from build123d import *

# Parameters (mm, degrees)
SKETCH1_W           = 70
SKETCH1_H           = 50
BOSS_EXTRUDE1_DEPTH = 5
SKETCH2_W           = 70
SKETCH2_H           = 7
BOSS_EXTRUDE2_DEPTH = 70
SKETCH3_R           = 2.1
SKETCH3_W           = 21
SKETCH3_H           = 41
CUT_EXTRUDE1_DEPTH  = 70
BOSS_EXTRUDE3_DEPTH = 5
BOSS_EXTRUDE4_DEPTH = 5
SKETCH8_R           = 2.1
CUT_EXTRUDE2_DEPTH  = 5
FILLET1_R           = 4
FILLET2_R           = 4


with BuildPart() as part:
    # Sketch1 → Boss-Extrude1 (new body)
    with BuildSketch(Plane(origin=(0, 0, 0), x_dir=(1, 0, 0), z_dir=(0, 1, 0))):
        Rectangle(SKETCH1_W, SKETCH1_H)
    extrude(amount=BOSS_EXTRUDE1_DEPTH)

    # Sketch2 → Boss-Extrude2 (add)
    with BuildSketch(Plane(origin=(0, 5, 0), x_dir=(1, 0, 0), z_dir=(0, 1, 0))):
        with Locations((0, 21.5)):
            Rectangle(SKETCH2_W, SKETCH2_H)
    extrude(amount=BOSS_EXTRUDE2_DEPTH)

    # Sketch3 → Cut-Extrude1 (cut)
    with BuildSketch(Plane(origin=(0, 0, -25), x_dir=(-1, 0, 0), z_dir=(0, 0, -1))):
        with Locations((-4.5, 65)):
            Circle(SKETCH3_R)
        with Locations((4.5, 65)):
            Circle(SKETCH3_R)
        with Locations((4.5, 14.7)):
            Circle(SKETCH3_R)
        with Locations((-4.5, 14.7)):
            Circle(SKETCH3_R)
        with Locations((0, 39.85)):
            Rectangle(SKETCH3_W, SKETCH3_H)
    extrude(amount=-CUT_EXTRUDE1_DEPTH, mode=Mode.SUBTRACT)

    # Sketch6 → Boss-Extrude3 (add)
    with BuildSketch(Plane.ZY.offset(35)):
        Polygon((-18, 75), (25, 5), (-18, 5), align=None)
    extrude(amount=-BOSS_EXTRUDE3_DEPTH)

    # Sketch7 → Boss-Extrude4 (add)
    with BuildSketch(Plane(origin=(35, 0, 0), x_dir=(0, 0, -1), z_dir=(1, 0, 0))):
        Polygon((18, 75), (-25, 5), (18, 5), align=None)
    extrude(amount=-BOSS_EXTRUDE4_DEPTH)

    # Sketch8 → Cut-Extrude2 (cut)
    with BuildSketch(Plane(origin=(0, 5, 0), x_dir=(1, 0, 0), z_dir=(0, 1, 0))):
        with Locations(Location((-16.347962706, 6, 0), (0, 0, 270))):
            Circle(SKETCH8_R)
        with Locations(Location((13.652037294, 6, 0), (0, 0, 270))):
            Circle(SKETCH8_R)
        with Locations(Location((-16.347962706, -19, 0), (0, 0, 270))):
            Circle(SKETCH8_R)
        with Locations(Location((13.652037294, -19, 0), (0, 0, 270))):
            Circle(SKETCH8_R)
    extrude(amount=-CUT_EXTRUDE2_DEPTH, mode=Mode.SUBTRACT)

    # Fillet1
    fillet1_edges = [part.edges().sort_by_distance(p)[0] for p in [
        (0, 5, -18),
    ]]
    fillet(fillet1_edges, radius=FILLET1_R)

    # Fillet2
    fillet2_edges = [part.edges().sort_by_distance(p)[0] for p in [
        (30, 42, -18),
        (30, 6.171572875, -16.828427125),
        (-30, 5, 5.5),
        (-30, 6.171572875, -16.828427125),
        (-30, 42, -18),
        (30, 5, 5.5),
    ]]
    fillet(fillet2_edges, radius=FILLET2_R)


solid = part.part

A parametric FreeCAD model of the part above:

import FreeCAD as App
import Part
import Sketcher
Q = App.Units.Quantity


def edges_at(feature, points):
    """Names of the edges that pass closest to the given points."""
    edges = feature.Shape.Edges
    near = lambda p: min(range(len(edges)), key=lambda i: edges[i].distToShape(Part.Vertex(*p))[0])
    return sorted({f"Edge{near(p) + 1}" for p in points})


def add_polygon(sketch, points):
    """Adds a closed chain of lines whose ends are joined by coincident constraints."""
    first, n = sketch.GeometryCount, len(points)
    for a, b in zip(points, points[1:] + points[:1]):
        sketch.addGeometry(Part.LineSegment(App.Vector(*a, 0), App.Vector(*b, 0)), False)
    for i in range(n):
        sketch.addConstraint(Sketcher.Constraint("Coincident", first + i, 2, first + (i + 1) % n, 1))

doc = App.newDocument("Part")
body = doc.addObject("PartDesign::Body", "Body")

# Sketch on XZ plane
sketch1 = body.newObject("Sketcher::SketchObject", "Sketch")
sketch1.AttachmentSupport = (doc.getObject("XZ_Plane"), [""])
sketch1.MapMode = "FlatFace"
add_polygon(sketch1, [(-35, -25), (-35, 25), (35, 25), (35, -25)])  # lines 0-3
sketch1.addConstraint([
    Sketcher.Constraint("Vertical", 0),
    Sketcher.Constraint("Horizontal", 1),
    Sketcher.Constraint("Vertical", 2),
    Sketcher.Constraint("Horizontal", 3),
    Sketcher.Constraint("Symmetric", 0, 2, 2, 2, -1, 1),
    Sketcher.Constraint("DistanceX", 1, 1, 1, 2, Q("70 mm")),
    Sketcher.Constraint("DistanceY", 0, 1, 0, 2, Q("50 mm")),
])
pad1 = body.newObject("PartDesign::Pad", "Pad")
pad1.Profile = sketch1
pad1.Length = 5
pad1.Reversed = True

# Sketch on XZ plane
sketch2 = body.newObject("Sketcher::SketchObject", "Sketch001")
sketch2.AttachmentSupport = (doc.getObject("XZ_Plane"), [""])
sketch2.MapMode = "FlatFace"
sketch2.AttachmentOffset = App.Placement(App.Vector(0, 0, -5), App.Rotation())
add_polygon(sketch2, [(-35, -25), (-35, -18), (35, -18), (35, -25)])  # lines 0-3
sketch2.addConstraint([
    Sketcher.Constraint("Vertical", 0),
    Sketcher.Constraint("Horizontal", 1),
    Sketcher.Constraint("Vertical", 2),
    Sketcher.Constraint("Horizontal", 3),
    Sketcher.Constraint("DistanceX", 1, 1, 1, 2, Q("70 mm")),
    Sketcher.Constraint("DistanceY", 0, 1, 0, 2, Q("7 mm")),
    Sketcher.Constraint("DistanceX", 0, 2, -1, 1, Q("35 mm")),
    Sketcher.Constraint("DistanceY", 0, 2, -1, 1, Q("18 mm")),
])
pad2 = body.newObject("PartDesign::Pad", "Pad001")
pad2.Profile = sketch2
pad2.Length = 70
pad2.Reversed = True

# Sketch on XY plane
sketch3 = body.newObject("Sketcher::SketchObject", "Sketch002")
sketch3.AttachmentSupport = (doc.getObject("XY_Plane"), [""])
sketch3.MapMode = "FlatFace"
sketch3.AttachmentOffset = App.Placement(App.Vector(0, 0, -25), App.Rotation())
sketch3.addGeometry(Part.Circle(App.Vector(4.5, 65, 0), App.Vector(0, 0, 1), 2.1), False)  # 0
sketch3.addGeometry(Part.Circle(App.Vector(-4.5, 65, 0), App.Vector(0, 0, 1), 2.1), False)  # 1
sketch3.addGeometry(Part.Circle(App.Vector(-4.5, 14.7, 0), App.Vector(0, 0, 1), 2.1), False)  # 2
sketch3.addGeometry(Part.Circle(App.Vector(4.5, 14.7, 0), App.Vector(0, 0, 1), 2.1), False)  # 3
add_polygon(sketch3, [(10.5, 60.35), (10.5, 19.35), (-10.5, 19.35), (-10.5, 60.35)])  # lines 4-7
sketch3.addConstraint([
    Sketcher.Constraint("Vertical", 4),
    Sketcher.Constraint("Horizontal", 5),
    Sketcher.Constraint("Vertical", 6),
    Sketcher.Constraint("Horizontal", 7),
    Sketcher.Constraint("Equal", 0, 1),
    Sketcher.Constraint("Equal", 1, 2),
    Sketcher.Constraint("Equal", 2, 3),
    Sketcher.Constraint("Symmetric", 0, 3, 1, 3, -2),
    Sketcher.Constraint("Symmetric", 2, 3, 3, 3, -2),
    Sketcher.Constraint("Vertical", 1, 3, 2, 3),
    Sketcher.Constraint("Diameter", 0, Q("4.2 mm")),
    Sketcher.Constraint("DistanceX", 5, 2, 5, 1, Q("21 mm")),
    Sketcher.Constraint("DistanceY", 4, 2, 4, 1, Q("41 mm")),
    Sketcher.Constraint("DistanceY", -1, 1, 0, 3, Q("65 mm")),
    Sketcher.Constraint("DistanceX", 1, 3, 0, 3, Q("9 mm")),
    Sketcher.Constraint("DistanceX", 3, 3, 4, 2, Q("6 mm")),
    Sketcher.Constraint("DistanceY", -1, 1, 2, 3, Q("14.7 mm")),
    Sketcher.Constraint("DistanceY", -1, 1, 4, 2, Q("19.35 mm")),
])
pocket1 = body.newObject("PartDesign::Pocket", "Pocket")
pocket1.Profile = sketch3
pocket1.Length = 70
pocket1.Reversed = True

# Sketch on YZ plane
sketch4 = body.newObject("Sketcher::SketchObject", "Sketch003")
sketch4.AttachmentSupport = (doc.getObject("YZ_Plane"), [""])
sketch4.MapMode = "FlatFace"
sketch4.AttachmentOffset = App.Placement(App.Vector(0, 0, -35), App.Rotation())
add_polygon(sketch4, [(5, 25), (75, -18), (5, -18)])  # lines 0-2
sketch4.addConstraint([
    Sketcher.Constraint("Horizontal", 1),
    Sketcher.Constraint("Vertical", 2),
    Sketcher.Constraint("DistanceX", 1, 2, 1, 1, Q("70 mm")),
    Sketcher.Constraint("DistanceY", 2, 1, 2, 2, Q("43 mm")),
    Sketcher.Constraint("DistanceX", -1, 1, 0, 2, Q("75 mm")),
    Sketcher.Constraint("DistanceY", 0, 2, -1, 1, Q("18 mm")),
])
pad3 = body.newObject("PartDesign::Pad", "Pad002")
pad3.Profile = sketch4
pad3.Length = 5

# Sketch on YZ plane
sketch5 = body.newObject("Sketcher::SketchObject", "Sketch004")
sketch5.AttachmentSupport = (doc.getObject("YZ_Plane"), [""])
sketch5.MapMode = "FlatFace"
sketch5.AttachmentOffset = App.Placement(App.Vector(0, 0, 35), App.Rotation())
add_polygon(sketch5, [(75, -18), (5, 25), (5, -18)])  # lines 0-2
sketch5.addConstraint([
    Sketcher.Constraint("Vertical", 1),
    Sketcher.Constraint("Horizontal", 2),
    Sketcher.Constraint("DistanceX", 2, 1, 2, 2, Q("70 mm")),
    Sketcher.Constraint("DistanceY", 1, 2, 1, 1, Q("43 mm")),
    Sketcher.Constraint("DistanceX", -1, 1, 0, 2, Q("5 mm")),
    Sketcher.Constraint("DistanceY", -1, 1, 0, 2, Q("25 mm")),
])
pad4 = body.newObject("PartDesign::Pad", "Pad003")
pad4.Profile = sketch5
pad4.Length = 5
pad4.Reversed = True

# Sketch on XZ plane
sketch6 = body.newObject("Sketcher::SketchObject", "Sketch005")
sketch6.AttachmentSupport = (doc.getObject("XZ_Plane"), [""])
sketch6.MapMode = "FlatFace"
sketch6.AttachmentOffset = App.Placement(App.Vector(0, 0, -5), App.Rotation())
sketch6.addGeometry([
    Part.Circle(App.Vector(-16.347963, -6, 0), App.Vector(0, 0, 1), 2.1),
    Part.Circle(App.Vector(13.652037, -6, 0), App.Vector(0, 0, 1), 2.1),
    Part.Circle(App.Vector(-16.347963, 19, 0), App.Vector(0, 0, 1), 2.1),
    Part.Circle(App.Vector(13.652037, 19, 0), App.Vector(0, 0, 1), 2.1),
], False)
sketch6.addConstraint([
    Sketcher.Constraint("Equal", 0, 1),
    Sketcher.Constraint("Equal", 1, 2),
    Sketcher.Constraint("Equal", 2, 3),
    Sketcher.Constraint("Horizontal", 0, 3, 1, 3),
    Sketcher.Constraint("Horizontal", 2, 3, 3, 3),
    Sketcher.Constraint("Vertical", 0, 3, 2, 3),
    Sketcher.Constraint("Vertical", 1, 3, 3, 3),
    Sketcher.Constraint("Diameter", 0, Q("4.2 mm")),
    Sketcher.Constraint("DistanceY", 0, 3, -1, 1, Q("6 mm")),
    Sketcher.Constraint("DistanceY", -1, 1, 2, 3, Q("19 mm")),
    Sketcher.Constraint("DistanceX", 0, 3, 1, 3, Q("30 mm")),
    Sketcher.Constraint("DistanceX", 0, 3, -1, 1, Q("16.347963 mm")),
])
pocket2 = body.newObject("PartDesign::Pocket", "Pocket001")
pocket2.Profile = sketch6
pocket2.Length = 5
pocket2.Reversed = True
doc.recompute()

fillet = body.newObject("PartDesign::Fillet", "Fillet")
fillet.Base = (pocket2, edges_at(pocket2, [(0, 5, -18)]))
fillet.Radius = 4
doc.recompute()

fillet2 = body.newObject("PartDesign::Fillet", "Fillet001")
fillet2.Base = (fillet, edges_at(fillet, [
    (30, 42, -18),
    (30, 6.172, -16.828),
    (-30, 5, 5.5),
    (-30, 6.172, -16.828),
    (-30, 42, -18),
    (30, 5, 5.5),
]))
fillet2.Radius = 4

doc.recompute()
